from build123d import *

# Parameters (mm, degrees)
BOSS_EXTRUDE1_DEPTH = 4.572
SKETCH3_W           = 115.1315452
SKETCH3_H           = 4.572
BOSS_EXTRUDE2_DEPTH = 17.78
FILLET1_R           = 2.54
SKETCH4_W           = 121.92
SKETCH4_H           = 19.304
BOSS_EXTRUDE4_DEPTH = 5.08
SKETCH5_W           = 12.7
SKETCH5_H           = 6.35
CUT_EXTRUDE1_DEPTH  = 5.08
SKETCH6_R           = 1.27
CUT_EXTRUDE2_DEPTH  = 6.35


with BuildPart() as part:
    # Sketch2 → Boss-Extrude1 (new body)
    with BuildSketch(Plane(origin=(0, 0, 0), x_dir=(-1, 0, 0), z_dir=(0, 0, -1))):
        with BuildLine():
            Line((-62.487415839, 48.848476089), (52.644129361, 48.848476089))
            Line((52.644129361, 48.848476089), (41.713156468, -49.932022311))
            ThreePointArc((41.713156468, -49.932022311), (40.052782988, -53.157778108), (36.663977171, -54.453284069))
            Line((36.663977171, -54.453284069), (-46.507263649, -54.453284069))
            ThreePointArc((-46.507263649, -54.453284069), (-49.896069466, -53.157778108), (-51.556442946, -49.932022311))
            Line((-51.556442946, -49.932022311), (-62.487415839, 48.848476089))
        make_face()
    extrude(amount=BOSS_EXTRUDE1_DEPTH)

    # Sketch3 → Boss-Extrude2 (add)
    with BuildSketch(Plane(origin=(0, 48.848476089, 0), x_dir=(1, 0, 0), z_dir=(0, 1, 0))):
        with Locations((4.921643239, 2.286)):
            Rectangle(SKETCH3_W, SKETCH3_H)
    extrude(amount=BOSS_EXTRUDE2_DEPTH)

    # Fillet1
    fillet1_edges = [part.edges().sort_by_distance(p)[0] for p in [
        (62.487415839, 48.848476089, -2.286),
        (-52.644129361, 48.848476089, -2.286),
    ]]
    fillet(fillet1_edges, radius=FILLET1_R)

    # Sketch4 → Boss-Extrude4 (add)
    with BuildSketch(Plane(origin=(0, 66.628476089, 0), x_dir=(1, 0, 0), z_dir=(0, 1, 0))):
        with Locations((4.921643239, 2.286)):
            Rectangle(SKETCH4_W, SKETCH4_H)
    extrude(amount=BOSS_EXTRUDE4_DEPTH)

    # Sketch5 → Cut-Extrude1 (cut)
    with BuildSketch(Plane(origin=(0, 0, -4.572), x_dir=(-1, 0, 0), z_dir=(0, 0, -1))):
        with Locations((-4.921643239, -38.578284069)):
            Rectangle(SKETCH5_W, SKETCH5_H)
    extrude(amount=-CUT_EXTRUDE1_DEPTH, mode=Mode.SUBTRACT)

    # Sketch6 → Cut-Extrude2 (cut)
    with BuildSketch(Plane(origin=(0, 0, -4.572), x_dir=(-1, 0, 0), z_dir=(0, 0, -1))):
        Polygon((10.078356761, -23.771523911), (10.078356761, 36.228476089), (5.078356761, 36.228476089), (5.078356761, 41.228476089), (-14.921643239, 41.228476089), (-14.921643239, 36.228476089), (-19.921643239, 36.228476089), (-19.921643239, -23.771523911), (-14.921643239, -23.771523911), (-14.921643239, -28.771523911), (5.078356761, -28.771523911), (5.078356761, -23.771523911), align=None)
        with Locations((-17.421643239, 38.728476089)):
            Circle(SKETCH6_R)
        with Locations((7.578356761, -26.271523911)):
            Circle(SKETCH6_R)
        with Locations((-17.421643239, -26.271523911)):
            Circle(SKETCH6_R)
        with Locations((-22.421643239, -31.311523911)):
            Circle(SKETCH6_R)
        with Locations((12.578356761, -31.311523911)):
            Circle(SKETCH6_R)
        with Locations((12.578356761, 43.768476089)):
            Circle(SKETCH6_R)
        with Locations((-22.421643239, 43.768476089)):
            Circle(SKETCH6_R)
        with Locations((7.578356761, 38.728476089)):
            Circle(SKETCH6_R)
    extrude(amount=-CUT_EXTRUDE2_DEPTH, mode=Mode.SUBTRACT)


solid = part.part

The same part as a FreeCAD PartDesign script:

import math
import FreeCAD as App
import Part
import Sketcher
from FreeCAD import Vector
Q = App.Units.Quantity


def edges_at(feature, points):
    """Names of the edges that pass closest to the given points."""
    edges = feature.Shape.Edges
    near = lambda p: min(range(len(edges)), key=lambda i: edges[i].distToShape(Part.Vertex(*p))[0])
    return sorted({f"Edge{near(p) + 1}" for p in points})


def add_polygon(sketch, points):
    """Adds a closed chain of lines whose ends are joined by coincident constraints."""
    first, n = sketch.GeometryCount, len(points)
    for a, b in zip(points, points[1:] + points[:1]):
        sketch.addGeometry(Part.LineSegment(App.Vector(*a, 0), App.Vector(*b, 0)), False)
    for i in range(n):
        sketch.addConstraint(Sketcher.Constraint("Coincident", first + i, 2, first + (i + 1) % n, 1))

doc = App.newDocument("Part")
body = doc.addObject("PartDesign::Body", "Body")

sketch1 = body.newObject("Sketcher::SketchObject", "Sketch")
sketch1.AttachmentSupport = (doc.getObject("XY_Plane"), [""])
sketch1.MapMode = "FlatFace"
sketch1.addGeometry([
    Part.LineSegment(Vector(-52.644129, 48.848476, 0), Vector(62.487416, 48.848476, 0)),
    Part.LineSegment(Vector(62.487416, 48.848476, 0), Vector(51.556443, -49.932022, 0)),
    Part.ArcOfCircle(Part.Circle(Vector(46.507264, -49.373284, 0), Vector(0, 0, 1), 5.08), math.radians(-90), math.radians(-6.314615)),
    Part.LineSegment(Vector(46.507264, -54.453284, 0), Vector(-36.663977, -54.453284, 0)),
    Part.ArcOfCircle(Part.Circle(Vector(-36.663977, -49.373284, 0), Vector(0, 0, 1), 5.08), math.radians(-173.685385), math.radians(-90)),
    Part.LineSegment(Vector(-41.713156, -49.932022, 0), Vector(-52.644129, 48.848476, 0)),
], False)
sketch1.addConstraint([
    Sketcher.Constraint("Coincident", 0, 2, 1, 1),
    Sketcher.Constraint("Coincident", 1, 2, 2, 2),
    Sketcher.Constraint("Coincident", 2, 1, 3, 1),
    Sketcher.Constraint("Coincident", 3, 2, 4, 2),
    Sketcher.Constraint("Coincident", 4, 1, 5, 1),
    Sketcher.Constraint("Coincident", 5, 2, 0, 1),
    Sketcher.Constraint("Horizontal", 0),
    Sketcher.Constraint("Horizontal", 3),
    Sketcher.Constraint("Radius", 2, Q("0.2 in")),
    Sketcher.Constraint("Radius", 4, Q("0.2 in")),
    Sketcher.Constraint("DistanceX", 3, 2, 3, 1, 83.171241),
    Sketcher.Constraint("DistanceY", 1, 2, 0, 2, 98.780498),
    Sketcher.Constraint("DistanceX", 4, 1, 1, 2, 93.269599),
    Sketcher.Constraint("DistanceY", 4, 1, 5, 2, 98.780498),
    Sketcher.Constraint("DistanceX", 0, 1, 0, 2, 115.131545),
    Sketcher.Constraint("DistanceX", 5, 2, -1, 1, 52.644129),
    Sketcher.Constraint("DistanceX", 4, 3, 2, 3, 83.171241),
    Sketcher.Constraint("DistanceX", 2, 1, 1, 2, 5.049179),
    Sketcher.Constraint("Distance", 1, 99.383465),
    Sketcher.Constraint("DistanceY", 2, 3, -1, 1, 49.373284),
])
pad1 = body.newObject("PartDesign::Pad", "Pad")
pad1.Profile = sketch1
pad1.Length = Q("0.18 in")
pad1.Reversed = True

sketch2 = body.newObject("Sketcher::SketchObject", "Sketch001")
sketch2.AttachmentSupport = (doc.getObject("XZ_Plane"), [""])
sketch2.MapMode = "FlatFace"
sketch2.AttachmentOffset = App.Placement(Vector(0, 0, -48.848476), App.Rotation())
add_polygon(sketch2, [(-52.644129, -4.572), (-52.644129, 0), (62.487416, 0), (62.487416, -4.572)])
sketch2.addConstraint([
    Sketcher.Constraint("Vertical", 0),
    Sketcher.Constraint("Horizontal", 1),
    Sketcher.Constraint("Vertical", 2),
    Sketcher.Constraint("Horizontal", 3),
    Sketcher.Constraint("PointOnObject", 0, 2, -1),
    Sketcher.Constraint("DistanceY", 0, 1, 0, 2, Q("0.18 in")),
    Sketcher.Constraint("DistanceX", 1, 1, 1, 2, 115.131545),
    Sketcher.Constraint("DistanceX", 0, 2, -1, 1, 52.644129),
])
pad2 = body.newObject("PartDesign::Pad", "Pad001")
pad2.Profile = sketch2
pad2.Length = Q("0.7 in")
pad2.Reversed = True
doc.recompute()

fillet = body.newObject("PartDesign::Fillet", "Fillet")
fillet.Base = (pad2, edges_at(pad2, [(62.487, 48.848, -2.286), (-52.644, 48.848, -2.286)]))
fillet.Radius = Q("0.1 in")

sketch3 = body.newObject("Sketcher::SketchObject", "Sketch002")
sketch3.AttachmentSupport = (doc.getObject("XZ_Plane"), [""])
sketch3.MapMode = "FlatFace"
sketch3.AttachmentOffset = App.Placement(Vector(0, 0, -66.628476), App.Rotation())
add_polygon(sketch3, [(-56.038357, -11.938), (-56.038357, 7.366), (65.881643, 7.366), (65.881643, -11.938)])
sketch3.addConstraint([
    Sketcher.Constraint("Vertical", 0),
    Sketcher.Constraint("Horizontal", 1),
    Sketcher.Constraint("Vertical", 2),
    Sketcher.Constraint("Horizontal", 3),
    Sketcher.Constraint("DistanceX", 1, 1, 1, 2, Q("4.8 in")),
    Sketcher.Constraint("DistanceY", 0, 1, 0, 2, Q("0.76 in")),
    Sketcher.Constraint("DistanceY", -1, 1, 0, 2, Q("0.29 in")),
    Sketcher.Constraint("DistanceX", 0, 2, -1, 1, 56.038357),
])
pad3 = body.newObject("PartDesign::Pad", "Pad002")
pad3.Profile = sketch3
pad3.Length = Q("0.2 in")
pad3.Reversed = True

sketch4 = body.newObject("Sketcher::SketchObject", "Sketch003")
sketch4.AttachmentSupport = (doc.getObject("XY_Plane"), [""])
sketch4.MapMode = "FlatFace"
sketch4.AttachmentOffset = App.Placement(Vector(0, 0, -0.18 * 25.4), App.Rotation())
add_polygon(sketch4, [(11.271643, -35.403284), (11.271643, -41.753284), (-1.428357, -41.753284), (-1.428357, -35.403284)])
sketch4.addConstraint([
    Sketcher.Constraint("Vertical", 0),
    Sketcher.Constraint("Horizontal", 1),
    Sketcher.Constraint("Vertical", 2),
    Sketcher.Constraint("Horizontal", 3),
    Sketcher.Constraint("DistanceX", 1, 2, 1, 1, Q("0.5 in")),
    Sketcher.Constraint("DistanceY", 0, 2, 0, 1, Q("0.25 in")),
    Sketcher.Constraint("DistanceX", -1, 1, 0, 2, 11.271643),
    Sketcher.Constraint("DistanceY", 0, 2, -1, 1, 41.753284),
])
pocket1 = body.newObject("PartDesign::Pocket", "Pocket")
pocket1.Profile = sketch4
pocket1.Length = Q("0.2 in")
pocket1.Reversed = True

sketch5 = body.newObject("Sketcher::SketchObject", "Sketch004")
sketch5.AttachmentSupport = (doc.getObject("XY_Plane"), [""])
sketch5.MapMode = "FlatFace"
sketch5.AttachmentOffset = App.Placement(Vector(0, 0, -0.18 * 25.4), App.Rotation())
add_polygon(sketch5, [(-10.078357, -23.771524), (-10.078357, 36.228476), (-5.078357, 36.228476), (-5.078357, 41.228476), (14.921643, 41.228476), (14.921643, 36.228476), (19.921643, 36.228476), (19.921643, -23.771524), (14.921643, -23.771524), (14.921643, -28.771524), (-5.078357, -28.771524), (-5.078357, -23.771524)])
sketch5.addGeometry(Part.Circle(Vector(17.421643, 38.728476, 0), Vector(0, 0, 1), 1.27), False)
sketch5.addGeometry(Part.Circle(Vector(-7.578357, -26.271524, 0), Vector(0, 0, 1), 1.27), False)
sketch5.addGeometry(Part.Circle(Vector(17.421643, -26.271524, 0), Vector(0, 0, 1), 1.27), False)
sketch5.addGeometry(Part.Circle(Vector(22.421643, -31.311524, 0), Vector(0, 0, 1), 1.27), False)
sketch5.addGeometry(Part.Circle(Vector(-12.578357, -31.311524, 0), Vector(0, 0, 1), 1.27), False)
sketch5.addGeometry(Part.Circle(Vector(-12.578357, 43.768476, 0), Vector(0, 0, 1), 1.27), False)
sketch5.addGeometry(Part.Circle(Vector(22.421643, 43.768476, 0), Vector(0, 0, 1), 1.27), False)
sketch5.addGeometry(Part.Circle(Vector(-7.578357, 38.728476, 0), Vector(0, 0, 1), 1.27), False)
sketch5.addConstraint([
    Sketcher.Constraint("Vertical", 0),
    Sketcher.Constraint("Horizontal", 1),
    Sketcher.Constraint("Vertical", 2),
    Sketcher.Constraint("Horizontal", 3),
    Sketcher.Constraint("Vertical", 4),
    Sketcher.Constraint("Horizontal", 5),
    Sketcher.Constraint("Vertical", 6),
    Sketcher.Constraint("Horizontal", 7),
    Sketcher.Constraint("Vertical", 8),
    Sketcher.Constraint("Horizontal", 9),
    Sketcher.Constraint("Vertical", 10),
    Sketcher.Constraint("Horizontal", 11),
    Sketcher.Constraint("Equal", 12, 13),
    Sketcher.Constraint("Equal", 13, 14),
    Sketcher.Constraint("Equal", 14, 15),
    Sketcher.Constraint("Equal", 15, 16),
    Sketcher.Constraint("Equal", 16, 17),
    Sketcher.Constraint("Equal", 17, 18),
    Sketcher.Constraint("Equal", 18, 19),
    Sketcher.Constraint("Horizontal", 13, 3, 14, 3),
    Sketcher.Constraint("Horizontal", 15, 3, 16, 3),
    Sketcher.Constraint("Horizontal", 17, 3, 18, 3),
    Sketcher.Constraint("Horizontal", 12, 3, 19, 3),
    Sketcher.Constraint("Horizontal", 1, 2, 4, 2),
    Sketcher.Constraint("Horizontal", 7, 2, 10, 2),
    Sketcher.Constraint("Vertical", 12, 3, 14, 3),
    Sketcher.Constraint("Vertical", 16, 3, 17, 3),
    Sketcher.Constraint("Vertical", 15, 3, 18, 3),
    Sketcher.Constraint("Vertical", 13, 3, 19, 3),
    Sketcher.Constraint("Vertical", 4, 2, 7, 2),
    Sketcher.Constraint("Vertical", 2, 2, 9, 2),
    Sketcher.Constraint("Equal", 1, 5),
    Sketcher.Constraint("Equal", 11, 2),
    Sketcher.Constraint("Equal", 4, 8),
    Sketcher.Constraint("Diameter", 12, Q("0.1 in")),
    Sketcher.Constraint("DistanceY", 2, 2, 17, 3, Q("0.1 in")),
    Sketcher.Constraint("DistanceY", 15, 3, 8, 2, Q("0.1 in")),
    Sketcher.Constraint("DistanceX", 1, 1, 1, 2, 5.0),
    Sketcher.Constraint("DistanceX", 3, 1, 3, 2, 20.0),
    Sketcher.Constraint("DistanceY", 0, 1, 0, 2, 60.0),
    Sketcher.Constraint("DistanceX", 13, 3, 12, 3, 25.0),
    Sketcher.Constraint("DistanceY", 13, 3, 12, 3, 65.0),
    Sketcher.Constraint("DistanceX", 14, 3, 15, 3, 5.0),
    Sketcher.Constraint("DistanceY", 15, 3, 14, 3, 5.04),
    Sketcher.Constraint("DistanceX", 16, 3, 13, 3, 5.0),
    Sketcher.Constraint("DistanceX", 0, 2, 19, 3, 2.5),
    Sketcher.Constraint("DistanceX", -1, 1, 12, 3, 17.421643),
    Sketcher.Constraint("DistanceY", -1, 1, 12, 3, 38.728476),
])
pocket2 = body.newObject("PartDesign::Pocket", "Pocket001")
pocket2.Profile = sketch5
pocket2.Length = Q("0.25 in")
pocket2.Reversed = True

doc.recompute()
